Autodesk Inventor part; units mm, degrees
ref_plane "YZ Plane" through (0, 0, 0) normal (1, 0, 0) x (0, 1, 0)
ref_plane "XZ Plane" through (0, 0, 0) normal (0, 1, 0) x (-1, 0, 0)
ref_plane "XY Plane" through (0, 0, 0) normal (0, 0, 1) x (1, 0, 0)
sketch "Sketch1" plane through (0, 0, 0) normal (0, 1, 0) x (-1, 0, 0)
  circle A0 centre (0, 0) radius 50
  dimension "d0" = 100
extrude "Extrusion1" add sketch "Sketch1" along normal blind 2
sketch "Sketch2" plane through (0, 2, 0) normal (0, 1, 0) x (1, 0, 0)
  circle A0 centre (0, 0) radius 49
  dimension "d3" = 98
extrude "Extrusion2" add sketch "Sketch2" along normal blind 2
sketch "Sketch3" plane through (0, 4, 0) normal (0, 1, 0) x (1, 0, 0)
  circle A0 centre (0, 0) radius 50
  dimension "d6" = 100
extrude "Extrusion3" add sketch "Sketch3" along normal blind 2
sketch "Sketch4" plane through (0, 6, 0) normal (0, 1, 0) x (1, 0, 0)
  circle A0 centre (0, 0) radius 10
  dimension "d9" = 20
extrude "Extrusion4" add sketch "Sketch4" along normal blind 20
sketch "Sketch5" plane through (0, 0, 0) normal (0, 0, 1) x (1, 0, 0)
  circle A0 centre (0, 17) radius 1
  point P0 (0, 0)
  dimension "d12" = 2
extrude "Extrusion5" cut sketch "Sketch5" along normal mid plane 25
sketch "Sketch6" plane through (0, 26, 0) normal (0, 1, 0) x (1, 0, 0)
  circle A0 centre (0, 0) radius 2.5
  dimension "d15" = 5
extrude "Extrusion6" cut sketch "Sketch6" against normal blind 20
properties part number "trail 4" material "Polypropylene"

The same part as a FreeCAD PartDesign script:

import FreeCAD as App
import Part
import Sketcher
from FreeCAD import Vector

doc = App.newDocument("Part")
params = doc.addObject("Spreadsheet::Sheet", "Params")
for row, (alias, value) in enumerate([
    ("sketch1_diameter", "100 mm"),
    ("pad1_length", "2 mm"),
    ("sketch2_diameter", "98 mm"),
    ("pad2_length", "2 mm"),
    ("sketch3_diameter", "100 mm"),
    ("pad3_length", "2 mm"),
    ("sketch4_diameter", "20 mm"),
    ("pad4_length", "20 mm"),
    ("sketch5_diameter", "2 mm"),
    ("pocket1_length", "25 mm"),
    ("sketch6_diameter", "5 mm"),
    ("pocket2_length", "20 mm"),
], start=1):
    params.set(f"A{row}", alias)
    params.set(f"B{row}", "=" + value)
    params.setAlias(f"B{row}", alias)

body = doc.addObject("PartDesign::Body", "Body")

sketch1 = body.newObject("Sketcher::SketchObject", "Sketch")
sketch1.AttachmentSupport = (doc.getObject("XZ_Plane"), [""])
sketch1.MapMode = "FlatFace"
sketch1.addGeometry(Part.Circle(Vector(0, 0, 0), Vector(0, 0, 1), 50), False)
sketch1.addConstraint(Sketcher.Constraint("Coincident", 0, 3, -1, 1))
sketch1.addConstraint(Sketcher.Constraint("Diameter", 0, 100.0))
sketch1.setExpression("Constraints[1]", "Params.sketch1_diameter")
pad1 = body.newObject("PartDesign::Pad", "Pad")
pad1.Profile = sketch1
pad1.setExpression("Length", "Params.pad1_length")
pad1.Reversed = True

sketch2 = body.newObject("Sketcher::SketchObject", "Sketch001")
sketch2.AttachmentSupport = (doc.getObject("XZ_Plane"), [""])
sketch2.MapMode = "FlatFace"
sketch2.AttachmentOffset = App.Placement(Vector(0, 0, -2), App.Rotation())
sketch2.addGeometry(Part.Circle(Vector(0, 0, 0), Vector(0, 0, 1), 49), False)
sketch2.addConstraint(Sketcher.Constraint("Coincident", 0, 3, -1, 1))
sketch2.addConstraint(Sketcher.Constraint("Diameter", 0, 98.0))
sketch2.setExpression("Constraints[1]", "Params.sketch2_diameter")
pad2 = body.newObject("PartDesign::Pad", "Pad001")
pad2.Profile = sketch2
pad2.setExpression("Length", "Params.pad2_length")
pad2.Reversed = True

sketch3 = body.newObject("Sketcher::SketchObject", "Sketch002")
sketch3.AttachmentSupport = (doc.getObject("XZ_Plane"), [""])
sketch3.MapMode = "FlatFace"
sketch3.AttachmentOffset = App.Placement(Vector(0, 0, -4), App.Rotation())
sketch3.addGeometry(Part.Circle(Vector(0, 0, 0), Vector(0, 0, 1), 50), False)
sketch3.addConstraint(Sketcher.Constraint("Coincident", 0, 3, -1, 1))
sketch3.addConstraint(Sketcher.Constraint("Diameter", 0, 100.0))
sketch3.setExpression("Constraints[1]", "Params.sketch3_diameter")
pad3 = body.newObject("PartDesign::Pad", "Pad002")
pad3.Profile = sketch3
pad3.setExpression("Length", "Params.pad3_length")
pad3.Reversed = True

sketch4 = body.newObject("Sketcher::SketchObject", "Sketch003")
sketch4.AttachmentSupport = (doc.getObject("XZ_Plane"), [""])
sketch4.MapMode = "FlatFace"
sketch4.AttachmentOffset = App.Placement(Vector(0, 0, -6), App.Rotation())
sketch4.addGeometry(Part.Circle(Vector(0, 0, 0), Vector(0, 0, 1), 10), False)
sketch4.addConstraint(Sketcher.Constraint("Coincident", 0, 3, -1, 1))
sketch4.addConstraint(Sketcher.Constraint("Diameter", 0, 20.0))
sketch4.setExpression("Constraints[1]", "Params.sketch4_diameter")
pad4 = body.newObject("PartDesign::Pad", "Pad003")
pad4.Profile = sketch4
pad4.setExpression("Length", "Params.pad4_length")
pad4.Reversed = True

sketch5 = body.newObject("Sketcher::SketchObject", "Sketch004")
sketch5.AttachmentSupport = (doc.getObject("XY_Plane"), [""])
sketch5.MapMode = "FlatFace"
sketch5.addGeometry(Part.Circle(Vector(0, 17, 0), Vector(0, 0, 1), 1), False)
sketch5.addConstraint(Sketcher.Constraint("PointOnObject", 0, 3, -2))
sketch5.addConstraint(Sketcher.Constraint("Diameter", 0, 2.0))
sketch5.addConstraint(Sketcher.Constraint("DistanceY", -1, 1, 0, 3, 17.0))
sketch5.setExpression("Constraints[1]", "Params.sketch5_diameter")
pocket1 = body.newObject("PartDesign::Pocket", "Pocket")
pocket1.Profile = sketch5
pocket1.setExpression("Length", "Params.pocket1_length")
pocket1.Midplane = True

sketch6 = body.newObject("Sketcher::SketchObject", "Sketch005")
sketch6.AttachmentSupport = (doc.getObject("XZ_Plane"), [""])
sketch6.MapMode = "FlatFace"
sketch6.AttachmentOffset = App.Placement(Vector(0, 0, -26), App.Rotation())
sketch6.addGeometry(Part.Circle(Vector(0, 0, 0), Vector(0, 0, 1), 2.5), False)
sketch6.addConstraint(Sketcher.Constraint("Coincident", 0, 3, -1, 1))
sketch6.addConstraint(Sketcher.Constraint("Diameter", 0, 5.0))
sketch6.setExpression("Constraints[1]", "Params.sketch6_diameter")
pocket2 = body.newObject("PartDesign::Pocket", "Pocket001")
pocket2.Profile = sketch6
pocket2.setExpression("Length", "Params.pocket2_length")
pocket2.Reversed = True

doc.recompute()
